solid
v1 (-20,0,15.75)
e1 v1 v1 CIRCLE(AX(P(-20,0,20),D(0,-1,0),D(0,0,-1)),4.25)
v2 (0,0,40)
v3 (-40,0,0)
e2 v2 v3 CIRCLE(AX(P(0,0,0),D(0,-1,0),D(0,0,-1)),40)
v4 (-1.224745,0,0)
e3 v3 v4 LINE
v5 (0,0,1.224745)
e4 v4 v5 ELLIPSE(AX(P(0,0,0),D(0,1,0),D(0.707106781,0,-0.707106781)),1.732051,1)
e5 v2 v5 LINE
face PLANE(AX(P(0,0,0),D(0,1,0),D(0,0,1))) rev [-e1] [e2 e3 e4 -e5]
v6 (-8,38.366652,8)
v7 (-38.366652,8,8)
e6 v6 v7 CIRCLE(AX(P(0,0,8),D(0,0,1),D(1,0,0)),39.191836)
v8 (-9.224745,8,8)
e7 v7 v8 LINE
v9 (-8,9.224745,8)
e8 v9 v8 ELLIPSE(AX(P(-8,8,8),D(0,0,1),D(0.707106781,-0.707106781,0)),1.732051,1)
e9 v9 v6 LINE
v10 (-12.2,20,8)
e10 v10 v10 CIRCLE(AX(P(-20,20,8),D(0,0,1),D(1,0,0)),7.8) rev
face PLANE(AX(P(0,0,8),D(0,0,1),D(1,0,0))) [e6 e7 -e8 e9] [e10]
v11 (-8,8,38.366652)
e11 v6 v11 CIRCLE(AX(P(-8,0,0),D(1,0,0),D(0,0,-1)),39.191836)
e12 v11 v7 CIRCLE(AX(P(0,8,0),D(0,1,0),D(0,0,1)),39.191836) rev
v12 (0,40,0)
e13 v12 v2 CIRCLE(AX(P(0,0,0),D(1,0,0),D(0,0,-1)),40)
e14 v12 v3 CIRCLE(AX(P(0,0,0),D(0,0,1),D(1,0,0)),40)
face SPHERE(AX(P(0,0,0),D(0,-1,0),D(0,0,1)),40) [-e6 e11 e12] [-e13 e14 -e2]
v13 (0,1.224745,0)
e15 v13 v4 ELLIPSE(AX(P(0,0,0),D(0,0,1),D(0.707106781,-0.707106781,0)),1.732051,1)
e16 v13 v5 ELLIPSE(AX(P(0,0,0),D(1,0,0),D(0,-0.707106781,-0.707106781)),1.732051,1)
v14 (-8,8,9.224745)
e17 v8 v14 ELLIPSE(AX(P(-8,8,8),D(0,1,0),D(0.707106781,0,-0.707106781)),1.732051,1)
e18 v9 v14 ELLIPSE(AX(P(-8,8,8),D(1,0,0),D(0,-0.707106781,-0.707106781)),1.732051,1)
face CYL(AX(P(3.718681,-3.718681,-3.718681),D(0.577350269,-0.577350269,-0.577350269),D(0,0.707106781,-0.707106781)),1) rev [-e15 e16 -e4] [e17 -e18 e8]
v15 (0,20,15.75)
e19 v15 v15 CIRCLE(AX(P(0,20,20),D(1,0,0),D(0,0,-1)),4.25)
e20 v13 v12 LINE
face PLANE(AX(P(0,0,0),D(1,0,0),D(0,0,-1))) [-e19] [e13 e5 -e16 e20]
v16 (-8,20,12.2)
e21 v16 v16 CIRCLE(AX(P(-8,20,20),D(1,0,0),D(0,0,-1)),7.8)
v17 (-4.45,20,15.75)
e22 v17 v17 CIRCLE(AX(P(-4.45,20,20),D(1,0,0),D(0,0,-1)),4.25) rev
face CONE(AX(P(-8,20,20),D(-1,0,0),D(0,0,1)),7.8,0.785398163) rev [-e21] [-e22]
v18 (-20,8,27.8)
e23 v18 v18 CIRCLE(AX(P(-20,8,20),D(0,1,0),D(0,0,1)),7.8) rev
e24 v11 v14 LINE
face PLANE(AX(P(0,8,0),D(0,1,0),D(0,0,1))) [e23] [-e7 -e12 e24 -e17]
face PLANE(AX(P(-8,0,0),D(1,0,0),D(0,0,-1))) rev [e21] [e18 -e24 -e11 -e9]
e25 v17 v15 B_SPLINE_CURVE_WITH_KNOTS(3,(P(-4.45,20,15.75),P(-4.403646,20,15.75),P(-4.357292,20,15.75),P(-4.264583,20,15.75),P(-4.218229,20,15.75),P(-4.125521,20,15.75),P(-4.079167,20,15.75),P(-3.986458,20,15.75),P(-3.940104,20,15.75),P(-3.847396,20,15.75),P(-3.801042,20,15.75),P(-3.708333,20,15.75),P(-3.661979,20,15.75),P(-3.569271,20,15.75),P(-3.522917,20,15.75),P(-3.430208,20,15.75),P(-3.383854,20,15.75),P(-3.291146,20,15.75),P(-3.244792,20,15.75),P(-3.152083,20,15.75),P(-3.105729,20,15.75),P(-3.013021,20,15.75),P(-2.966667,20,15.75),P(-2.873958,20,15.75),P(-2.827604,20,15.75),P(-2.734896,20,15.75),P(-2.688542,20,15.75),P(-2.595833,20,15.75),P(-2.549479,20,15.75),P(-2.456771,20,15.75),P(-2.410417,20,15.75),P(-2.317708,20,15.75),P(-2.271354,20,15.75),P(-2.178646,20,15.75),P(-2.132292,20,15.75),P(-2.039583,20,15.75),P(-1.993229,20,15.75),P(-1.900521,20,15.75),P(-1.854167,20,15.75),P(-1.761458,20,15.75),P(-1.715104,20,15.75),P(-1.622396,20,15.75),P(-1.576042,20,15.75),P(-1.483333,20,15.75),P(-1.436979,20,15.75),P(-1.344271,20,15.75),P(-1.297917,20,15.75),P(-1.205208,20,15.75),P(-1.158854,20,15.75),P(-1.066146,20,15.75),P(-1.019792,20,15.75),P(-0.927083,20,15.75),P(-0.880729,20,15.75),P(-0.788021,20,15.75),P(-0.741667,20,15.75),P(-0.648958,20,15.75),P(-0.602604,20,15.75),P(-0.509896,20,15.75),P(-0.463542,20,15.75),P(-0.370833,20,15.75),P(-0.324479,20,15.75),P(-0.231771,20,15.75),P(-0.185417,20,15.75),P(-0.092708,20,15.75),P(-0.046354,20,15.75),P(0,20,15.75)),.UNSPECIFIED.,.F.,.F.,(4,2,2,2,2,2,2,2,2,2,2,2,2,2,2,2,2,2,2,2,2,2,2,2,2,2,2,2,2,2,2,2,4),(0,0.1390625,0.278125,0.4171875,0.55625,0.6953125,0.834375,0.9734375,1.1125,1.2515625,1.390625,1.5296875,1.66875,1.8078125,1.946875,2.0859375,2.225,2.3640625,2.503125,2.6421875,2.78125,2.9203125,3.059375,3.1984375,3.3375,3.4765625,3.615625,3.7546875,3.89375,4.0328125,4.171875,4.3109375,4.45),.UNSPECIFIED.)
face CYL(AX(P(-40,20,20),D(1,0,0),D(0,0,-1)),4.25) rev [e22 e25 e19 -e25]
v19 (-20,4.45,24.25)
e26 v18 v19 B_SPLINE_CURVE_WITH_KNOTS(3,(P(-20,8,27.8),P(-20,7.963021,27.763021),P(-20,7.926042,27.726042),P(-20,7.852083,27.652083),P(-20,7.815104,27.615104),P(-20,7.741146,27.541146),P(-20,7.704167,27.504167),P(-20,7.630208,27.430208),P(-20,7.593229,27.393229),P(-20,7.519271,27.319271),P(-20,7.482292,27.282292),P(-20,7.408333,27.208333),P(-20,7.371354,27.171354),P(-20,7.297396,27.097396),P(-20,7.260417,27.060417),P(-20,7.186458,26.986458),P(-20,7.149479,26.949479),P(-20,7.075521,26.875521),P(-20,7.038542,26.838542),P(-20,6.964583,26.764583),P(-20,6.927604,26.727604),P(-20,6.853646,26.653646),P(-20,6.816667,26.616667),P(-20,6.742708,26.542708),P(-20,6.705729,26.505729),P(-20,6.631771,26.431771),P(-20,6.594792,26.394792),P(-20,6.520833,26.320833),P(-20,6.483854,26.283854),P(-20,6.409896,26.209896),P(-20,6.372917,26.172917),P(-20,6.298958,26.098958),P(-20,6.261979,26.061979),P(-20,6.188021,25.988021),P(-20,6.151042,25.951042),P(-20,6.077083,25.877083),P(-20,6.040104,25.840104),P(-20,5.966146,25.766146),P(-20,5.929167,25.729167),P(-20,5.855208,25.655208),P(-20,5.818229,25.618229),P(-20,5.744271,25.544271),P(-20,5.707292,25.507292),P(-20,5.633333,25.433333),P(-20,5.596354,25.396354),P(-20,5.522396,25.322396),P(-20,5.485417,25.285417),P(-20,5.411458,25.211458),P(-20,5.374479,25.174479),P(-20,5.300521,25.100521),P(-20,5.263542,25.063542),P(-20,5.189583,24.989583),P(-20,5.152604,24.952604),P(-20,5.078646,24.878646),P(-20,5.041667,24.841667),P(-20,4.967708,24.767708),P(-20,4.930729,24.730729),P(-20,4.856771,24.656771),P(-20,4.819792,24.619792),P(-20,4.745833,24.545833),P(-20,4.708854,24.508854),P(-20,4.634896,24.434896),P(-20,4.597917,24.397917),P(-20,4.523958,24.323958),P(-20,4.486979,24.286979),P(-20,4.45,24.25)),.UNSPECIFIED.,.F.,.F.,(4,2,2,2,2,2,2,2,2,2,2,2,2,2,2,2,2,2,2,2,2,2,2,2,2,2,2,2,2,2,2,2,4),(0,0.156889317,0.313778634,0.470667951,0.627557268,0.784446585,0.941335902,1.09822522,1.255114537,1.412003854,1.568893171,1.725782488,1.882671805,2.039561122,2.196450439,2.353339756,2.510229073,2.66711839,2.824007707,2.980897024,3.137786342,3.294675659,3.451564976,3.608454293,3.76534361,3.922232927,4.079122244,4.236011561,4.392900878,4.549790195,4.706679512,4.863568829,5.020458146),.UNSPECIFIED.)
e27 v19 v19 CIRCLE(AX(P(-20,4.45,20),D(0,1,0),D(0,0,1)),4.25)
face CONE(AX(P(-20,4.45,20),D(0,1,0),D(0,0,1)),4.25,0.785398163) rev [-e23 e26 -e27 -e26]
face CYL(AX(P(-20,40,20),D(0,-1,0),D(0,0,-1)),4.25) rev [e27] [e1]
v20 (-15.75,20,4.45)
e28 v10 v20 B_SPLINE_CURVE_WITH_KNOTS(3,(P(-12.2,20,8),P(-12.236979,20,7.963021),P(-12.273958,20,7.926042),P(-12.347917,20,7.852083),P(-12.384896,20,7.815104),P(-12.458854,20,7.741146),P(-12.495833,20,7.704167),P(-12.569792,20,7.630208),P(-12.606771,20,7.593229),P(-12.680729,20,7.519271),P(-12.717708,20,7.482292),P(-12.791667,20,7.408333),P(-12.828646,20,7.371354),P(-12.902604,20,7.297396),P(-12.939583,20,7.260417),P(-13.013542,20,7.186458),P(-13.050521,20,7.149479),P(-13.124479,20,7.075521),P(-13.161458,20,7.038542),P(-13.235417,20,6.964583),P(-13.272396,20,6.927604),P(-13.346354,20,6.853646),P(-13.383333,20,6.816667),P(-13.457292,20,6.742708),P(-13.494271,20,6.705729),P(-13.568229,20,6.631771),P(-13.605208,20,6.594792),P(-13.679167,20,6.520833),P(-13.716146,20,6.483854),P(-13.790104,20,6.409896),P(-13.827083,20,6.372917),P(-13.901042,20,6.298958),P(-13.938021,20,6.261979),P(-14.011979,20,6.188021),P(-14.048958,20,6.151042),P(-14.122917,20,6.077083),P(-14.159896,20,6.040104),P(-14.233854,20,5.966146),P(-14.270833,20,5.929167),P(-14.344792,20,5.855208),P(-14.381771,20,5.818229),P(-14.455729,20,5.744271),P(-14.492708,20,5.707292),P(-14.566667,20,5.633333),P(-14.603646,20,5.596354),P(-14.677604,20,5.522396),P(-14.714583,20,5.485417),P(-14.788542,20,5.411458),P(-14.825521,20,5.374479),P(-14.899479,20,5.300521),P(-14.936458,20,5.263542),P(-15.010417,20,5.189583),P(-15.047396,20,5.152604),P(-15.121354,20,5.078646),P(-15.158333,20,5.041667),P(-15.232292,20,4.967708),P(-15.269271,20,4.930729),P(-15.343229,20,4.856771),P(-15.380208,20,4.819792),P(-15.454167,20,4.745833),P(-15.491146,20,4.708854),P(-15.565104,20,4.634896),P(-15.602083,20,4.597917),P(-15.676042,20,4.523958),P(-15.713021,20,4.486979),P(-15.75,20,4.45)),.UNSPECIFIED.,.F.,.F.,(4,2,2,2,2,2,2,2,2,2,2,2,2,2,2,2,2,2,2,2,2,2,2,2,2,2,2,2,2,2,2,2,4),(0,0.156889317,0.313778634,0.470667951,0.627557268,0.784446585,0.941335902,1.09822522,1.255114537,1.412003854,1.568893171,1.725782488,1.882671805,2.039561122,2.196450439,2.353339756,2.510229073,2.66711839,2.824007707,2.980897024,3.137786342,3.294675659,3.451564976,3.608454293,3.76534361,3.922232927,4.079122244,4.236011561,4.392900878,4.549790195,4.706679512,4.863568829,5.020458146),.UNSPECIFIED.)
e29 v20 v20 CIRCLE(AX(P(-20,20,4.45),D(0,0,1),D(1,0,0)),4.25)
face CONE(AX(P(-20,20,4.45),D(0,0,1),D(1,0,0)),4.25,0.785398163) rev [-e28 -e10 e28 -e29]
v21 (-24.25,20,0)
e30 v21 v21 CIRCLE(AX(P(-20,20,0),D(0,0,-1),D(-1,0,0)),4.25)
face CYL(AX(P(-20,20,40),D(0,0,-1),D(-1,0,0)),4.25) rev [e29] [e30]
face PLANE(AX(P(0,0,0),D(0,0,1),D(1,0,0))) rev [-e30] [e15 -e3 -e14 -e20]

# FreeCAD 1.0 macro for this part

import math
import FreeCAD as App
import Part
import Sketcher
from FreeCAD import Vector
Q = App.Units.Quantity


def edges_at(feature, points):
    """Names of the edges that pass closest to the given points."""
    edges = feature.Shape.Edges
    near = lambda p: min(range(len(edges)), key=lambda i: edges[i].distToShape(Part.Vertex(*p))[0])
    return sorted({f"Edge{near(p) + 1}" for p in points})


def faces_at(feature, points):
    """Names of the faces that lie closest to the given points."""
    faces = feature.Shape.Faces
    near = lambda p: min(range(len(faces)), key=lambda i: faces[i].distToShape(Part.Vertex(*p))[0])
    return sorted({f"Face{near(p) + 1}" for p in points})


def add_polygon(sketch, points):
    """Adds a closed chain of lines whose ends are joined by coincident constraints."""
    first, n = sketch.GeometryCount, len(points)
    for a, b in zip(points, points[1:] + points[:1]):
        sketch.addGeometry(Part.LineSegment(App.Vector(*a, 0), App.Vector(*b, 0)), False)
    for i in range(n):
        sketch.addConstraint(Sketcher.Constraint("Coincident", first + i, 2, first + (i + 1) % n, 1))

doc = App.newDocument("Part")
body = doc.addObject("PartDesign::Body", "Body")

sketch1 = doc.addObject("Sketcher::SketchObject", "Sketch")
body.addObject(sketch1)
sketch1.AttachmentSupport = (doc.XY_Plane, [""])
sketch1.MapMode = "FlatFace"
sketch1.addGeometry(Part.LineSegment(Vector(0, 0, 0), Vector(0, 40, 0)), False)
sketch1.addGeometry(Part.ArcOfCircle(Part.Circle(Vector(0, 0, 0), Vector(0, 0, 1), 40), math.radians(90), math.radians(180)), False)
sketch1.addGeometry(Part.LineSegment(Vector(-40, 0, 0), Vector(0, 0, 0)), False)
sketch1.addConstraint(Sketcher.Constraint("Coincident", 0, 2, 1, 1))
sketch1.addConstraint(Sketcher.Constraint("Coincident", 1, 2, 2, 1))
sketch1.addConstraint(Sketcher.Constraint("Coincident", 2, 2, 0, 1))
sketch1.addConstraint(Sketcher.Constraint("Vertical", 0))
sketch1.addConstraint(Sketcher.Constraint("Horizontal", 2))
sketch1.addConstraint(Sketcher.Constraint("Coincident", 1, 3, -1, 1))
sketch1.addConstraint(Sketcher.Constraint("Coincident", 2, 2, -1, 1))
sketch1.addConstraint(Sketcher.Constraint("Radius", 1, Q("40 mm")))
revolution = doc.addObject("PartDesign::Revolution", "Revolution")
body.addObject(revolution)
revolution.Profile = sketch1
revolution.ReferenceAxis = (sketch1, ["V_Axis"])
revolution.Angle = 90
doc.recompute()

thickness = doc.addObject("PartDesign::Thickness", "Thickness")
body.addObject(thickness)
thickness.Base = (revolution, faces_at(revolution, [(-20, 28.284, 20)]))
thickness.Value = 8
thickness.Reversed = True
thickness.Join = "Intersection"

sketch2 = doc.addObject("Sketcher::SketchObject", "Sketch001")
body.addObject(sketch2)
sketch2.AttachmentSupport = (doc.YZ_Plane, [""])
sketch2.MapMode = "FlatFace"
sketch2.addGeometry(Part.Circle(Vector(20, 20, 0), Vector(0, 0, 1), 4.2), False)
sketch2.addConstraint(Sketcher.Constraint("Diameter", 0, Q("8.5 mm")))
sketch2.addConstraint(Sketcher.Constraint("DistanceX", -1, 1, 0, 3, Q("20 mm")))
sketch2.addConstraint(Sketcher.Constraint("DistanceY", -1, 1, 0, 3, Q("20 mm")))
pocket1 = doc.addObject("PartDesign::Pocket", "Pocket")
body.addObject(pocket1)
pocket1.Profile = sketch2
pocket1.Type = "ThroughAll"

sketch3 = doc.addObject("Sketcher::SketchObject", "Sketch002")
body.addObject(sketch3)
sketch3.AttachmentSupport = (doc.XY_Plane, [""])
sketch3.MapMode = "FlatFace"
sketch3.addGeometry(Part.Circle(Vector(-20, 20, 0), Vector(0, 0, 1), 4.2), False)
sketch3.addConstraint(Sketcher.Constraint("Diameter", 0, Q("8.5 mm")))
sketch3.addConstraint(Sketcher.Constraint("DistanceX", 0, 3, -1, 1, Q("20 mm")))
sketch3.addConstraint(Sketcher.Constraint("DistanceY", -1, 1, 0, 3, Q("20 mm")))
pocket2 = doc.addObject("PartDesign::Pocket", "Pocket001")
body.addObject(pocket2)
pocket2.Profile = sketch3
pocket2.Type = "ThroughAll"
pocket2.Reversed = True

sketch4 = doc.addObject("Sketcher::SketchObject", "Sketch003")
body.addObject(sketch4)
sketch4.AttachmentSupport = (doc.XZ_Plane, [""])
sketch4.MapMode = "FlatFace"
sketch4.addGeometry(Part.Circle(Vector(-20, 20, 0), Vector(0, 0, 1), 4.2), False)
sketch4.addConstraint(Sketcher.Constraint("Diameter", 0, Q("8.5 mm")))
sketch4.addConstraint(Sketcher.Constraint("DistanceX", 0, 3, -1, 1, Q("20 mm")))
sketch4.addConstraint(Sketcher.Constraint("DistanceY", -1, 1, 0, 3, Q("20 mm")))
pocket3 = doc.addObject("PartDesign::Pocket", "Pocket002")
body.addObject(pocket3)
pocket3.Profile = sketch4
pocket3.Type = "ThroughAll"
doc.recompute()

chamfer = doc.addObject("PartDesign::Chamfer", "Chamfer")
body.addObject(chamfer)
chamfer.Base = (pocket3, edges_at(pocket3, [(-8, 20, 24.25)]))
chamfer.Size = 3.55
doc.recompute()

chamfer2 = doc.addObject("PartDesign::Chamfer", "Chamfer001")
body.addObject(chamfer2)
chamfer2.Base = (chamfer, edges_at(chamfer, [(-15.75, 20, 8)]))
chamfer2.Size = 3.55
doc.recompute()

chamfer3 = doc.addObject("PartDesign::Chamfer", "Chamfer002")
body.addObject(chamfer3)
chamfer3.Base = (chamfer2, edges_at(chamfer2, [(-20, 8, 24.25)]))
chamfer3.Size = 3.55

sketch5 = doc.addObject("Sketcher::SketchObject", "Sketch004")
body.addObject(sketch5)
sketch5.Placement = App.Placement(Vector(0, 0, 0), App.Rotation(Vector(-0.707106781, 0, 0.707106781), Vector(0, 0.999999999, 0), Vector(-0.707106781, 0, -0.707106781), "ZXY"))
add_polygon(sketch5, [(16.6, 11.8), (-5.3, -3.7), (-4.6, -4.5), (17.2, 10.9)])
sketch5.addGeometry(Part.LineSegment(Vector(-5.3, -3.7, 0), Vector(16.6, 11.8, 0)), True)
sketch5.addConstraint(Sketcher.Constraint("Coincident", 4, 1, 0, 2))
sketch5.addConstraint(Sketcher.Constraint("Coincident", 4, 2, 3, 2))
sketch5.addConstraint(Sketcher.Constraint("Parallel", 0, 2))
sketch5.addConstraint(Sketcher.Constraint("Perpendicular", 2, 3))
sketch5.addConstraint(Sketcher.Constraint("Distance", 3, Q("1 mm")))
sketch5.addConstraint(Sketcher.Constraint("DistanceY", 1, 2, 2, 2, Q("15.411301 mm")))
sketch5.addConstraint(Sketcher.Constraint("Distance", 0, Q("26.802551 mm")))
sketch5.addConstraint(Sketcher.Constraint("DistanceX", 0, 2, -1, 1, Q("5.259009 mm")))
sketch5.addConstraint(Sketcher.Constraint("DistanceY", 0, 2, -1, 1, Q("3.718681 mm")))
sketch5.addConstraint(Sketcher.Constraint("DistanceX", 1, 2, -1, 1, Q("4.592339 mm")))
groove = doc.addObject("PartDesign::Groove", "Groove")
body.addObject(groove)
groove.Profile = sketch5
groove.ReferenceAxis = (sketch5, ["Axis0"])
groove.Angle = 360

doc.recompute()
